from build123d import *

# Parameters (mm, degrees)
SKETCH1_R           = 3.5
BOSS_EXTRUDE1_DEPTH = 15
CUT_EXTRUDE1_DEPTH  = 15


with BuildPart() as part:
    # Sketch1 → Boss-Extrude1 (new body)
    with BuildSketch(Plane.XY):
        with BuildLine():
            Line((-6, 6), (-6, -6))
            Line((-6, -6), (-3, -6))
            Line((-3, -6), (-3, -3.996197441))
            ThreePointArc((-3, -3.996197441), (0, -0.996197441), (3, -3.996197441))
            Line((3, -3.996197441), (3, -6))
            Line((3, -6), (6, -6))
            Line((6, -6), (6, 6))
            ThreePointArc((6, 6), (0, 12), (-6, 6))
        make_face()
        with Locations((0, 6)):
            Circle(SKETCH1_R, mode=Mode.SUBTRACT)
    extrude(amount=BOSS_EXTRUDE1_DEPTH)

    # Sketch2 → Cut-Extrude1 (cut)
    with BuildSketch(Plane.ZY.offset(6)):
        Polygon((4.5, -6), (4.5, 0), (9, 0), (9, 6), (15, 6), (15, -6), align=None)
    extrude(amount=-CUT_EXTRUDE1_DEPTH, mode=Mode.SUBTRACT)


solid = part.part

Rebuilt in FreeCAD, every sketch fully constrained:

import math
import FreeCAD as App
import Part
import Sketcher
from FreeCAD import Vector
Q = App.Units.Quantity


def add_polygon(sketch, points):
    """Adds a closed chain of lines whose ends are joined by coincident constraints."""
    first, n = sketch.GeometryCount, len(points)
    for a, b in zip(points, points[1:] + points[:1]):
        sketch.addGeometry(Part.LineSegment(App.Vector(*a, 0), App.Vector(*b, 0)), False)
    for i in range(n):
        sketch.addConstraint(Sketcher.Constraint("Coincident", first + i, 2, first + (i + 1) % n, 1))

doc = App.newDocument("Part")
body = doc.addObject("PartDesign::Body", "Body")

sketch1 = body.newObject("Sketcher::SketchObject", "Sketch")
sketch1.AttachmentSupport = (doc.getObject("XY_Plane"), [""])
sketch1.MapMode = "FlatFace"
sketch1.addGeometry([
    Part.LineSegment(Vector(-6, 6, 0), Vector(-6, -6, 0)),
    Part.LineSegment(Vector(-6, -6, 0), Vector(-3, -6, 0)),
    Part.LineSegment(Vector(-3, -6, 0), Vector(-3, -4, 0)),
    Part.ArcOfCircle(Part.Circle(Vector(0, -4, 0), Vector(0, 0, 1), 3), math.radians(0), math.radians(180)),
    Part.LineSegment(Vector(3, -4, 0), Vector(3, -6, 0)),
    Part.LineSegment(Vector(3, -6, 0), Vector(6, -6, 0)),
    Part.LineSegment(Vector(6, -6, 0), Vector(6, 6, 0)),
    Part.ArcOfCircle(Part.Circle(Vector(0, 6, 0), Vector(0, 0, 1), 6), math.radians(0), math.radians(180)),
    Part.Circle(Vector(0, 6, 0), Vector(0, 0, 1), 3.5),
], False)
sketch1.addConstraint([
    Sketcher.Constraint("Coincident", 0, 2, 1, 1),
    Sketcher.Constraint("Coincident", 1, 2, 2, 1),
    Sketcher.Constraint("Tangent", 2, 2, 3, 2),
    Sketcher.Constraint("Tangent", 3, 1, 4, 1),
    Sketcher.Constraint("Coincident", 4, 2, 5, 1),
    Sketcher.Constraint("Coincident", 5, 2, 6, 1),
    Sketcher.Constraint("Tangent", 6, 2, 7, 1),
    Sketcher.Constraint("Tangent", 7, 2, 0, 1),
    Sketcher.Constraint("Vertical", 0),
    Sketcher.Constraint("Horizontal", 1),
    Sketcher.Constraint("Vertical", 2),
    Sketcher.Constraint("Vertical", 4),
    Sketcher.Constraint("Horizontal", 5),
    Sketcher.Constraint("Vertical", 6),
    Sketcher.Constraint("Coincident", 8, 3, 7, 3),
    Sketcher.Constraint("Symmetric", 0, 2, 6, 2, -1, 1),
    Sketcher.Constraint("Symmetric", 1, 2, 4, 2, -2),
    Sketcher.Constraint("Diameter", 8, Q("7 mm")),
    Sketcher.Constraint("Radius", 3, Q("3 mm")),
    Sketcher.Constraint("Radius", 7, Q("6 mm")),
    Sketcher.Constraint("DistanceY", 0, 2, 0, 1, Q("12 mm")),
    Sketcher.Constraint("DistanceY", 2, 1, 2, 2, Q("2.003803 mm")),
])
pad1 = body.newObject("PartDesign::Pad", "Pad")
pad1.Profile = sketch1
pad1.Length = 15

sketch2 = body.newObject("Sketcher::SketchObject", "Sketch001")
sketch2.AttachmentSupport = (doc.getObject("YZ_Plane"), [""])
sketch2.MapMode = "FlatFace"
sketch2.AttachmentOffset = App.Placement(Vector(0, 0, -6), App.Rotation())
add_polygon(sketch2, [(0, 4.5), (-6, 4.5), (-6, 15), (6, 15), (6, 9), (0, 9)])
sketch2.addConstraint([
    Sketcher.Constraint("Horizontal", 0),
    Sketcher.Constraint("Vertical", 1),
    Sketcher.Constraint("Horizontal", 2),
    Sketcher.Constraint("Vertical", 3),
    Sketcher.Constraint("Horizontal", 4),
    Sketcher.Constraint("Vertical", 5),
    Sketcher.Constraint("PointOnObject", 4, 2, -2),
    Sketcher.Constraint("Equal", 0, 4),
    Sketcher.Constraint("Equal", 4, 3),
    Sketcher.Constraint("DistanceX", 0, 2, 0, 1, Q("6 mm")),
    Sketcher.Constraint("DistanceY", 1, 1, 1, 2, Q("10.5 mm")),
    Sketcher.Constraint("DistanceY", -1, 1, 1, 2, Q("15 mm")),
])
pocket1 = body.newObject("PartDesign::Pocket", "Pocket")
pocket1.Profile = sketch2
pocket1.Length = 15
pocket1.Reversed = True

doc.recompute()
